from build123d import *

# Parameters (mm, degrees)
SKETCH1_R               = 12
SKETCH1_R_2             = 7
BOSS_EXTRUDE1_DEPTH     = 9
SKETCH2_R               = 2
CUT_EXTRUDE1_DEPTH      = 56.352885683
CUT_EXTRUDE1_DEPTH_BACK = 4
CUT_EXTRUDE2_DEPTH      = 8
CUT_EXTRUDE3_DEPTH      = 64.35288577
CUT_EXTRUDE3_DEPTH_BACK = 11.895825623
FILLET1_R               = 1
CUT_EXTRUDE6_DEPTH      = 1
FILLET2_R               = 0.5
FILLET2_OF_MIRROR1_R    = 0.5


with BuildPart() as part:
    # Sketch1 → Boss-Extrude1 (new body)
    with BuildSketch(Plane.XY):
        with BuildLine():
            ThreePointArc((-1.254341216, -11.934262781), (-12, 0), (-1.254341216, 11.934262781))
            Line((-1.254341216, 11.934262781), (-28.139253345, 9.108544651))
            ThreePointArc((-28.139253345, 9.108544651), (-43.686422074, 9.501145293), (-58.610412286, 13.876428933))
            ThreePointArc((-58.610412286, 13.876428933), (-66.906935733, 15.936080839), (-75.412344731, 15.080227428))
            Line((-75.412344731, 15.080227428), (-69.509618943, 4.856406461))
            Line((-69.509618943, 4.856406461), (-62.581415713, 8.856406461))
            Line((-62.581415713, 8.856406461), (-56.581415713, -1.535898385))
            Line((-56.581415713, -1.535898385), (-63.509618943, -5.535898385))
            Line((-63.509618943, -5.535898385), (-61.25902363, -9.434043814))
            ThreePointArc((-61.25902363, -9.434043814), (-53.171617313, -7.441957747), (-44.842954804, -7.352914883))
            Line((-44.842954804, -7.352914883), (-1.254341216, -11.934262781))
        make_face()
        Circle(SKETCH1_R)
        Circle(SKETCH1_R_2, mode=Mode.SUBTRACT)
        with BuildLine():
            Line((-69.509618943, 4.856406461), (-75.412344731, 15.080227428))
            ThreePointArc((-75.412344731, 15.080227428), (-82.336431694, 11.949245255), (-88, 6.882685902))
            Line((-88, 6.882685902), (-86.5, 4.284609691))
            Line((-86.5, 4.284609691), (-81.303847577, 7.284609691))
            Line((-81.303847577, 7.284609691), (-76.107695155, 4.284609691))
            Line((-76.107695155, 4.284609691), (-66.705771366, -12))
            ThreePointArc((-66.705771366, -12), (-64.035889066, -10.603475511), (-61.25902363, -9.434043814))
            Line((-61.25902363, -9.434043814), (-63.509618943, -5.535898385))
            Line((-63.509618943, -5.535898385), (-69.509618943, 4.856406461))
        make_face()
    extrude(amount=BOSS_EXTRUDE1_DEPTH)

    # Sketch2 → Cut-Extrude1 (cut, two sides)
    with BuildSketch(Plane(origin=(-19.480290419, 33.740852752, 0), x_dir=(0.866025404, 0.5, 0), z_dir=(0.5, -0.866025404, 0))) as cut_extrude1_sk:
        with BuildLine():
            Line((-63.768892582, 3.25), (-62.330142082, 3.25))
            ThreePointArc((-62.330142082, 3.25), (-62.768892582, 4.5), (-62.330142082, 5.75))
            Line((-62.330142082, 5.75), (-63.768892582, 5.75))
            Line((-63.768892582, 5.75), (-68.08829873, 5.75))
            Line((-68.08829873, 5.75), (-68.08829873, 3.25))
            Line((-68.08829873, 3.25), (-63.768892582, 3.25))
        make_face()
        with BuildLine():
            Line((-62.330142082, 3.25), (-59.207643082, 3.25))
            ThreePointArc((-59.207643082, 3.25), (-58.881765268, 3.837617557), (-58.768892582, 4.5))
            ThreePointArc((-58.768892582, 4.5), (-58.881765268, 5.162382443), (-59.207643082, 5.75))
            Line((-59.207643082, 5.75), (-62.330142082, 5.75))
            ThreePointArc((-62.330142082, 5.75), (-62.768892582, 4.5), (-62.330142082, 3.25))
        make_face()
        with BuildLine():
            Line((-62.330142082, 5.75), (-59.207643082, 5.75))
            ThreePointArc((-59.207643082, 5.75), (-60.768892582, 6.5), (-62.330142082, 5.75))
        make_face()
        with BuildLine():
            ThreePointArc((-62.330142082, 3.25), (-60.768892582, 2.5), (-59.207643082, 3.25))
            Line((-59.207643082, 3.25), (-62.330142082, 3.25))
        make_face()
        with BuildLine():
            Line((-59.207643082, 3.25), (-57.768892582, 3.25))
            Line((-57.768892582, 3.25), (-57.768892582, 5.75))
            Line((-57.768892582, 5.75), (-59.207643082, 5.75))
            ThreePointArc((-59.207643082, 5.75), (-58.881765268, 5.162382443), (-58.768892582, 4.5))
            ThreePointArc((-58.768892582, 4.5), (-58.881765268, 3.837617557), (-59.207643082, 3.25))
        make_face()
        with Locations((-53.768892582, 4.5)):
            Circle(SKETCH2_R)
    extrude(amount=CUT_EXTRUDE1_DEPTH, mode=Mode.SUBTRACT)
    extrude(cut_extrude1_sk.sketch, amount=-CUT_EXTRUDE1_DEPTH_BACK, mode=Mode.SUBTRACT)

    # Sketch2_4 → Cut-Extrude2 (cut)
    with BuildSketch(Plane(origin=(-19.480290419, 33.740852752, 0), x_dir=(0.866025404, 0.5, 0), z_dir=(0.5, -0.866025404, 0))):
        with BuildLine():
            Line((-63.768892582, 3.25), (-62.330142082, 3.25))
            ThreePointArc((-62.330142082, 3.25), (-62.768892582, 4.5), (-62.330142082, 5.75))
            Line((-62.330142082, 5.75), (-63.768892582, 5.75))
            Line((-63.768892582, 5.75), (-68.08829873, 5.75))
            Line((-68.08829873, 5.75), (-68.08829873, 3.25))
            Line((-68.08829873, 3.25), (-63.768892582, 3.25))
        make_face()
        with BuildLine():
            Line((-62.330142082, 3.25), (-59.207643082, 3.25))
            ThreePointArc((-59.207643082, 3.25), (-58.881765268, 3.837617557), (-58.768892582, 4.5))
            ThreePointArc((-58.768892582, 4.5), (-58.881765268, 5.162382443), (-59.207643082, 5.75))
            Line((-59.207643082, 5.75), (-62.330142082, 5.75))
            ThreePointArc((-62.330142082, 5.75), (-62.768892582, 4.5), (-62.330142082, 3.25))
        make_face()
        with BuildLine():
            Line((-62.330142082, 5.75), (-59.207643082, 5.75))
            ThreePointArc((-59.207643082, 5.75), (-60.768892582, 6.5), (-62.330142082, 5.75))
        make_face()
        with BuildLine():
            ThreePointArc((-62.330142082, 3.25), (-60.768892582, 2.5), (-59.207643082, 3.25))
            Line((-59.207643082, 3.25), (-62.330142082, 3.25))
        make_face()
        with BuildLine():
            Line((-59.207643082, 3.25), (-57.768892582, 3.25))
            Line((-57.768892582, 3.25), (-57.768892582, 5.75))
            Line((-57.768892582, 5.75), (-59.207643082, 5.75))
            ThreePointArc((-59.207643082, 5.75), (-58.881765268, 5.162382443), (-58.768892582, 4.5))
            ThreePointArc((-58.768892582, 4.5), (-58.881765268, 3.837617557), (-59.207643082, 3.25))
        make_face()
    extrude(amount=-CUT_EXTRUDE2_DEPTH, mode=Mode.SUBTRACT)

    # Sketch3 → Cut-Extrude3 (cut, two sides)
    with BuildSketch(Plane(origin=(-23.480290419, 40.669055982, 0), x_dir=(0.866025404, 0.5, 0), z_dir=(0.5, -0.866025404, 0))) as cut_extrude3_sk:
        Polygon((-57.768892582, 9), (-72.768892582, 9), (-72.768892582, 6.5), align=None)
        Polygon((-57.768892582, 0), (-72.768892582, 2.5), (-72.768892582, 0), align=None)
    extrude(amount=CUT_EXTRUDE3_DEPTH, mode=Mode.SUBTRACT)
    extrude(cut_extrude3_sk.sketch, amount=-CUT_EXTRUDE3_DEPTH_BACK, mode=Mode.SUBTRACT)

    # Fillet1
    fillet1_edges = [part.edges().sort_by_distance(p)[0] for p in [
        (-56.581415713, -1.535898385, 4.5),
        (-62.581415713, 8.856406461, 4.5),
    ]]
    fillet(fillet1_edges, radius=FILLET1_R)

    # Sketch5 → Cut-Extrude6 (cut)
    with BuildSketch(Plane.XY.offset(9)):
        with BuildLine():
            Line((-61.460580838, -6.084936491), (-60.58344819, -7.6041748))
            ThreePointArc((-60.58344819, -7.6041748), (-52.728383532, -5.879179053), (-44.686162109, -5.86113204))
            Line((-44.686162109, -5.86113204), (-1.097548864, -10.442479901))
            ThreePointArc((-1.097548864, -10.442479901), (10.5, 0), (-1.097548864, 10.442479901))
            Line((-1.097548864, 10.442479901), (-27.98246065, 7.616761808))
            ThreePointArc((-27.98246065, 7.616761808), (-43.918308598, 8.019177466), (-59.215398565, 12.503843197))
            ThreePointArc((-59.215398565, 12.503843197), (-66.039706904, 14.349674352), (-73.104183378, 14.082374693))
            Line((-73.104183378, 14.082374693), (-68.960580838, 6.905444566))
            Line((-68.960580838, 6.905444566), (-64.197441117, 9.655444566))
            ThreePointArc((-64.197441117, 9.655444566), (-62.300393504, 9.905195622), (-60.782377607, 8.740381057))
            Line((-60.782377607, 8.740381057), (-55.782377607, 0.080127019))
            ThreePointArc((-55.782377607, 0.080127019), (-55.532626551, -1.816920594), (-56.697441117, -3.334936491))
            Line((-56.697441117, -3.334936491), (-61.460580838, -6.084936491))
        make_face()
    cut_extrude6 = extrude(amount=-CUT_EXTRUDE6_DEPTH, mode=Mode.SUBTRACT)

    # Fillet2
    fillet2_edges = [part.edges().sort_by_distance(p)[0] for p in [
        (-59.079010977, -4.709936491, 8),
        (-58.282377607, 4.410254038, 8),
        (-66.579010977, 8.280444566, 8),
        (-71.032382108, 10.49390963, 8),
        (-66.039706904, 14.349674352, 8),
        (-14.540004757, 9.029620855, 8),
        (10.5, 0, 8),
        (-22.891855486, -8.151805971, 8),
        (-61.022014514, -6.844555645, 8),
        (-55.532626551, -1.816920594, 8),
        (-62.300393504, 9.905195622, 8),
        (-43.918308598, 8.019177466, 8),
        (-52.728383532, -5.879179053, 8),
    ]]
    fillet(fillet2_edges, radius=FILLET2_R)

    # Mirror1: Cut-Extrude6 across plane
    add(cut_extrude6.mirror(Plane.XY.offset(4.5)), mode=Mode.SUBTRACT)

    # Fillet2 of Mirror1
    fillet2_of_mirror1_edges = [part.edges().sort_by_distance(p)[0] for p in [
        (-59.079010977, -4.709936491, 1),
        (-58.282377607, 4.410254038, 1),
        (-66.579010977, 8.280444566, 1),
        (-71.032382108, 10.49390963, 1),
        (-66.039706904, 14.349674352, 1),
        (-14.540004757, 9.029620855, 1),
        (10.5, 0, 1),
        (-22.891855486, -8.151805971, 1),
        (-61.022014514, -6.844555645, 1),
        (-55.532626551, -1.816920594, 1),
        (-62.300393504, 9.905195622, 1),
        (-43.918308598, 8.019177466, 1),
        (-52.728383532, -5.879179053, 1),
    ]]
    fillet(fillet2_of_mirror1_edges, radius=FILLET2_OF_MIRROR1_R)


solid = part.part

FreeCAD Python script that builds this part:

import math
import FreeCAD as App
import Part
import Sketcher
Q = App.Units.Quantity


def edges_at(feature, points):
    """Names of the edges that pass closest to the given points."""
    edges = feature.Shape.Edges
    near = lambda p: min(range(len(edges)), key=lambda i: edges[i].distToShape(Part.Vertex(*p))[0])
    return sorted({f"Edge{near(p) + 1}" for p in points})

doc = App.newDocument("Part")
body = doc.addObject("PartDesign::Body", "Body")

# Sketch on XY plane
sketch1 = body.newObject("Sketcher::SketchObject", "Sketch")
sketch1.AttachmentSupport = (doc.getObject("XY_Plane"), [""])
sketch1.MapMode = "FlatFace"
sketch1.addGeometry(Part.LineSegment(App.Vector(-1.254341, 11.934263, 0), App.Vector(-28.139253, 9.108545, 0)), False)
sketch1.addGeometry(Part.ArcOfCircle(Part.Circle(App.Vector(-34.410961, 68.779858, 0), App.Vector(0, 0, 1), 60), math.radians(-113.786155), math.radians(-84)), False)
sketch1.addGeometry(Part.ArcOfCircle(Part.Circle(App.Vector(-68.693517, -9, 0), App.Vector(0, 0, 1), 25), math.radians(66.213845), math.radians(105.590083)), False)
sketch1.addGeometry(Part.ArcOfCircle(Part.Circle(App.Vector(-68.693517, -9, 0), App.Vector(0, 0, 1), 25), math.radians(105.590083), math.radians(140.55721)), False)
sketch1.addGeometry(Part.LineSegment(App.Vector(-88, 6.882686, 0), App.Vector(-86.5, 4.28461, 0)), False)
sketch1.addGeometry(Part.LineSegment(App.Vector(-86.5, 4.28461, 0), App.Vector(-81.303848, 7.28461, 0)), False)
sketch1.addGeometry(Part.LineSegment(App.Vector(-81.303848, 7.28461, 0), App.Vector(-76.107695, 4.28461, 0)), False)
sketch1.addGeometry(Part.LineSegment(App.Vector(-76.107695, 4.28461, 0), App.Vector(-66.705771, -12, 0)), False)
sketch1.addGeometry(Part.ArcOfCircle(Part.Circle(App.Vector(-48.623234, -43.319873, 0), App.Vector(0, 0, 1), 36.165074), math.radians(110.450135), math.radians(120)), False)
sketch1.addGeometry(Part.ArcOfCircle(Part.Circle(App.Vector(-48.623234, -43.319873, 0), App.Vector(0, 0, 1), 36.165074), math.radians(84), math.radians(110.450135)), False)
sketch1.addGeometry(Part.LineSegment(App.Vector(-44.842955, -7.352915, 0), App.Vector(-1.254341, -11.934263, 0)), False)
sketch1.addGeometry(Part.ArcOfCircle(Part.Circle(App.Vector(0, 0, 0), App.Vector(0, 0, 1), 12), math.radians(-95.999998), math.radians(95.999998)), False)
sketch1.addGeometry(Part.LineSegment(App.Vector(-69.509619, 4.856406, 0), App.Vector(-62.581416, 8.856406, 0)), False)
sketch1.addGeometry(Part.LineSegment(App.Vector(-62.581416, 8.856406, 0), App.Vector(-56.581416, -1.535898, 0)), False)
sketch1.addGeometry(Part.LineSegment(App.Vector(-56.581416, -1.535898, 0), App.Vector(-63.509619, -5.535898, 0)), False)
sketch1.addGeometry(Part.LineSegment(App.Vector(-63.509619, -5.535898, 0), App.Vector(-69.509619, 4.856406, 0)), False)
sketch1.addGeometry(Part.Circle(App.Vector(0, 0, 0), App.Vector(0, 0, 1), 7), False)
sketch1.addConstraint(Sketcher.Constraint("Tangent", 0, 2, 1, 2))
sketch1.addConstraint(Sketcher.Constraint("Tangent", 1, 1, 2, 1))
sketch1.addConstraint(Sketcher.Constraint("Tangent", 2, 2, 3, 1))
sketch1.addConstraint(Sketcher.Constraint("Coincident", 3, 2, 4, 1))
sketch1.addConstraint(Sketcher.Constraint("Coincident", 4, 2, 5, 1))
sketch1.addConstraint(Sketcher.Constraint("Coincident", 5, 2, 6, 1))
sketch1.addConstraint(Sketcher.Constraint("Coincident", 6, 2, 7, 1))
sketch1.addConstraint(Sketcher.Constraint("Coincident", 7, 2, 8, 2))
sketch1.addConstraint(Sketcher.Constraint("Tangent", 8, 1, 9, 2))
sketch1.addConstraint(Sketcher.Constraint("Tangent", 9, 1, 10, 1))
sketch1.addConstraint(Sketcher.Constraint("Tangent", 10, 2, 11, 1))
sketch1.addConstraint(Sketcher.Constraint("Tangent", 11, 2, 0, 1))
sketch1.addConstraint(Sketcher.Constraint("Coincident", 12, 2, 13, 1))
sketch1.addConstraint(Sketcher.Constraint("Coincident", 13, 2, 14, 1))
sketch1.addConstraint(Sketcher.Constraint("Coincident", 14, 2, 15, 1))
sketch1.addConstraint(Sketcher.Constraint("Coincident", 15, 2, 12, 1))
sketch1.addConstraint(Sketcher.Constraint("Coincident", 11, 3, -1, 1))
sketch1.addConstraint(Sketcher.Constraint("Coincident", 16, 3, -1, 1))
sketch1.addConstraint(Sketcher.Constraint("Equal", 2, 3))
sketch1.addConstraint(Sketcher.Constraint("Equal", 8, 9))
sketch1.addConstraint(Sketcher.Constraint("Perpendicular", 4, 5))
sketch1.addConstraint(Sketcher.Constraint("Perpendicular", 5, 7))
sketch1.addConstraint(Sketcher.Constraint("Perpendicular", 7, 12))
sketch1.addConstraint(Sketcher.Constraint("Perpendicular", 12, 13))
sketch1.addConstraint(Sketcher.Constraint("Perpendicular", 13, 14))
sketch1.addConstraint(Sketcher.Constraint("Perpendicular", 14, 15))
sketch1.addConstraint(Sketcher.Constraint("Horizontal", 4, 2, 6, 2))
sketch1.addConstraint(Sketcher.Constraint("Vertical", 10, 2, 11, 2))
sketch1.addConstraint(Sketcher.Constraint("Equal", 5, 6))
sketch1.addConstraint(Sketcher.Constraint("Diameter", 16, 14.0))
sketch1.addConstraint(Sketcher.Constraint("Radius", 1, 60.0))
sketch1.addConstraint(Sketcher.Constraint("Radius", 2, 25.0))
sketch1.addConstraint(Sketcher.Constraint("Radius", 11, 12.0))
sketch1.addConstraint(Sketcher.Constraint("Angle", 0, Q("-174 deg")))
sketch1.addConstraint(Sketcher.Constraint("Angle", 4, Q("-60 deg")))
sketch1.addConstraint(Sketcher.Constraint("Distance", 4, 3.0))
sketch1.addConstraint(Sketcher.Constraint("Distance", 5, 6.0))
sketch1.addConstraint(Sketcher.Constraint("Distance", 12, 8.0))
sketch1.addConstraint(Sketcher.Constraint("Distance", 13, 12.0))
sketch1.addConstraint(Sketcher.Constraint("DistanceY", 2, 3, -1, 1, 9.0))
sketch1.addConstraint(Sketcher.Constraint("DistanceX", 3, 2, -1, 1, 88.0))
sketch1.addConstraint(Sketcher.Constraint("DistanceY", 7, 2, -1, 1, 12.0))
sketch1.addConstraint(Sketcher.Constraint("Distance", 0, 27.033002))
sketch1.addConstraint(Sketcher.Constraint("Radius", 8, 36.165074))
sketch1.addConstraint(Sketcher.Constraint("DistanceY", 13, 2, -1, 1, 1.535898))
sketch1.addConstraint(Sketcher.Constraint("DistanceY", 1, 1, 2, 2, 1.203798))
sketch1.addConstraint(Sketcher.Constraint("DistanceX", 3, 3, 13, 2, 12.112101))
sketch1.addConstraint(Sketcher.Constraint("DistanceX", 6, 2, 8, 1, 14.848672))
pad1 = body.newObject("PartDesign::Pad", "Pad")
pad1.Profile = sketch1
pad1.Length = 9

# Sketch on an angled plane
sketch2 = body.newObject("Sketcher::SketchObject", "Sketch001")
sketch2.Placement = App.Placement(App.Vector(-19.48029, 33.740853, 0), App.Rotation(App.Vector(0.866025404, 0.5, 0), App.Vector(0, 0, 1), App.Vector(0.5, -0.866025404, 0), "ZXY"))
sketch2.addGeometry(Part.LineSegment(App.Vector(-68.088299, 5.75, 0), App.Vector(-68.088299, 3.25, 0)), False)
sketch2.addGeometry(Part.LineSegment(App.Vector(-68.088299, 3.25, 0), App.Vector(-62.330142, 3.25, 0)), False)
sketch2.addGeometry(Part.ArcOfCircle(Part.Circle(App.Vector(-60.768893, 4.5, 0), App.Vector(0, 0, 1), 2), math.radians(-141.317813), math.radians(-38.682187)), False)
sketch2.addGeometry(Part.LineSegment(App.Vector(-59.207643, 3.25, 0), App.Vector(-57.768893, 3.25, 0)), False)
sketch2.addGeometry(Part.LineSegment(App.Vector(-57.768893, 3.25, 0), App.Vector(-57.768893, 5.75, 0)), False)
sketch2.addGeometry(Part.LineSegment(App.Vector(-57.768893, 5.75, 0), App.Vector(-59.207643, 5.75, 0)), False)
sketch2.addGeometry(Part.ArcOfCircle(Part.Circle(App.Vector(-60.768893, 4.5, 0), App.Vector(0, 0, 1), 2), math.radians(38.682187), math.radians(141.317813)), False)
sketch2.addGeometry(Part.LineSegment(App.Vector(-62.330142, 5.75, 0), App.Vector(-68.088299, 5.75, 0)), False)
sketch2.addGeometry(Part.Circle(App.Vector(-53.768893, 4.5, 0), App.Vector(0, 0, 1), 2), False)
sketch2.addConstraint(Sketcher.Constraint("Coincident", 0, 2, 1, 1))
sketch2.addConstraint(Sketcher.Constraint("Coincident", 1, 2, 2, 1))
sketch2.addConstraint(Sketcher.Constraint("Coincident", 2, 2, 3, 1))
sketch2.addConstraint(Sketcher.Constraint("Coincident", 3, 2, 4, 1))
sketch2.addConstraint(Sketcher.Constraint("Coincident", 4, 2, 5, 1))
sketch2.addConstraint(Sketcher.Constraint("Coincident", 5, 2, 6, 1))
sketch2.addConstraint(Sketcher.Constraint("Coincident", 6, 2, 7, 1))
sketch2.addConstraint(Sketcher.Constraint("Coincident", 7, 2, 0, 1))
sketch2.addConstraint(Sketcher.Constraint("Vertical", 0))
sketch2.addConstraint(Sketcher.Constraint("Horizontal", 1))
sketch2.addConstraint(Sketcher.Constraint("Horizontal", 3))
sketch2.addConstraint(Sketcher.Constraint("Vertical", 4))
sketch2.addConstraint(Sketcher.Constraint("Horizontal", 5))
sketch2.addConstraint(Sketcher.Constraint("Horizontal", 7))
sketch2.addConstraint(Sketcher.Constraint("Coincident", 6, 3, 2, 3))
sketch2.addConstraint(Sketcher.Constraint("Equal", 2, 6))
sketch2.addConstraint(Sketcher.Constraint("Equal", 6, 8))
sketch2.addConstraint(Sketcher.Constraint("Horizontal", 6, 3, 8, 3))
sketch2.addConstraint(Sketcher.Constraint("Horizontal", 1, 2, 2, 2))
sketch2.addConstraint(Sketcher.Constraint("Horizontal", 5, 2, 6, 2))
sketch2.addConstraint(Sketcher.Constraint("Vertical", 2, 2, 5, 2))
sketch2.addConstraint(Sketcher.Constraint("Diameter", 8, 4.0))
sketch2.addConstraint(Sketcher.Constraint("DistanceY", 0, 2, 0, 1, 2.5))
sketch2.addConstraint(Sketcher.Constraint("DistanceX", 2, 3, 8, 3, 7.0))
sketch2.addConstraint(Sketcher.Constraint("DistanceX", 6, 3, 3, 2, 3.0))
sketch2.addConstraint(Sketcher.Constraint("DistanceY", -1, 1, 2, 3, 4.5))
sketch2.addConstraint(Sketcher.Constraint("DistanceX", 0, 2, -1, 1, 68.088299))
sketch2.addConstraint(Sketcher.Constraint("DistanceX", 1, 1, 1, 2, 5.758157))
pocket1 = body.newObject("PartDesign::Pocket", "Pocket")
pocket1.Profile = sketch2
pocket1.Type = "TwoLengths"
pocket1.Length = 56.352886
pocket1.Length2 = 4
pocket1.Reversed = True

# Sketch on an angled plane
sketch3 = body.newObject("Sketcher::SketchObject", "Sketch002")
sketch3.Placement = App.Placement(App.Vector(-19.48029, 33.740853, 0), App.Rotation(App.Vector(0.866025404, 0.5, 0), App.Vector(0, 0, 1), App.Vector(0.5, -0.866025404, 0), "ZXY"))
sketch3.addGeometry(Part.LineSegment(App.Vector(-68.088299, 5.75, 0), App.Vector(-68.088299, 3.25, 0)), False)
sketch3.addGeometry(Part.LineSegment(App.Vector(-68.088299, 3.25, 0), App.Vector(-62.330142, 3.25, 0)), False)
sketch3.addGeometry(Part.ArcOfCircle(Part.Circle(App.Vector(-60.768893, 4.5, 0), App.Vector(0, 0, 1), 2), math.radians(-141.317813), math.radians(-38.682187)), False)
sketch3.addGeometry(Part.LineSegment(App.Vector(-59.207643, 3.25, 0), App.Vector(-57.768893, 3.25, 0)), False)
sketch3.addGeometry(Part.LineSegment(App.Vector(-57.768893, 3.25, 0), App.Vector(-57.768893, 5.75, 0)), False)
sketch3.addGeometry(Part.LineSegment(App.Vector(-57.768893, 5.75, 0), App.Vector(-59.207643, 5.75, 0)), False)
sketch3.addGeometry(Part.ArcOfCircle(Part.Circle(App.Vector(-60.768893, 4.5, 0), App.Vector(0, 0, 1), 2), math.radians(38.682187), math.radians(141.317813)), False)
sketch3.addGeometry(Part.LineSegment(App.Vector(-62.330142, 5.75, 0), App.Vector(-68.088299, 5.75, 0)), False)
sketch3.addConstraint(Sketcher.Constraint("Coincident", 0, 2, 1, 1))
sketch3.addConstraint(Sketcher.Constraint("Coincident", 1, 2, 2, 1))
sketch3.addConstraint(Sketcher.Constraint("Coincident", 2, 2, 3, 1))
sketch3.addConstraint(Sketcher.Constraint("Coincident", 3, 2, 4, 1))
sketch3.addConstraint(Sketcher.Constraint("Coincident", 4, 2, 5, 1))
sketch3.addConstraint(Sketcher.Constraint("Coincident", 5, 2, 6, 1))
sketch3.addConstraint(Sketcher.Constraint("Coincident", 6, 2, 7, 1))
sketch3.addConstraint(Sketcher.Constraint("Coincident", 7, 2, 0, 1))
sketch3.addConstraint(Sketcher.Constraint("Vertical", 0))
sketch3.addConstraint(Sketcher.Constraint("Horizontal", 1))
sketch3.addConstraint(Sketcher.Constraint("Horizontal", 3))
sketch3.addConstraint(Sketcher.Constraint("Vertical", 4))
sketch3.addConstraint(Sketcher.Constraint("Horizontal", 5))
sketch3.addConstraint(Sketcher.Constraint("Horizontal", 7))
sketch3.addConstraint(Sketcher.Constraint("Coincident", 6, 3, 2, 3))
sketch3.addConstraint(Sketcher.Constraint("Equal", 2, 6))
sketch3.addConstraint(Sketcher.Constraint("Horizontal", 1, 2, 2, 2))
sketch3.addConstraint(Sketcher.Constraint("Horizontal", 5, 2, 6, 2))
sketch3.addConstraint(Sketcher.Constraint("Vertical", 2, 2, 5, 2))
sketch3.addConstraint(Sketcher.Constraint("Radius", 2, 2.0))
sketch3.addConstraint(Sketcher.Constraint("DistanceY", 0, 2, 0, 1, 2.5))
sketch3.addConstraint(Sketcher.Constraint("DistanceX", 6, 3, 3, 2, 3.0))
sketch3.addConstraint(Sketcher.Constraint("DistanceY", -1, 1, 2, 3, 4.5))
sketch3.addConstraint(Sketcher.Constraint("DistanceX", 0, 2, -1, 1, 68.088299))
sketch3.addConstraint(Sketcher.Constraint("DistanceX", 1, 1, 1, 2, 5.758157))
pocket2 = body.newObject("PartDesign::Pocket", "Pocket001")
pocket2.Profile = sketch3
pocket2.Length = 8

# Sketch on an angled plane
sketch4 = body.newObject("Sketcher::SketchObject", "Sketch003")
sketch4.Placement = App.Placement(App.Vector(-23.48029, 40.669056, 0), App.Rotation(App.Vector(0.866025404, 0.5, 0), App.Vector(0, 0, 1), App.Vector(0.5, -0.866025404, 0), "ZXY"))
sketch4.addGeometry(Part.LineSegment(App.Vector(-57.768893, 9, 0), App.Vector(-72.768893, 9, 0)), False)
sketch4.addGeometry(Part.LineSegment(App.Vector(-72.768893, 9, 0), App.Vector(-72.768893, 6.5, 0)), False)
sketch4.addGeometry(Part.LineSegment(App.Vector(-72.768893, 6.5, 0), App.Vector(-57.768893, 9, 0)), False)
sketch4.addGeometry(Part.LineSegment(App.Vector(-57.768893, 0, 0), App.Vector(-72.768893, 2.5, 0)), False)
sketch4.addGeometry(Part.LineSegment(App.Vector(-72.768893, 2.5, 0), App.Vector(-72.768893, 0, 0)), False)
sketch4.addGeometry(Part.LineSegment(App.Vector(-72.768893, 0, 0), App.Vector(-57.768893, 0, 0)), False)
sketch4.addConstraint(Sketcher.Constraint("Coincident", 0, 2, 1, 1))
sketch4.addConstraint(Sketcher.Constraint("Coincident", 1, 2, 2, 1))
sketch4.addConstraint(Sketcher.Constraint("Coincident", 2, 2, 0, 1))
sketch4.addConstraint(Sketcher.Constraint("Coincident", 3, 2, 4, 1))
sketch4.addConstraint(Sketcher.Constraint("Coincident", 4, 2, 5, 1))
sketch4.addConstraint(Sketcher.Constraint("Coincident", 5, 2, 3, 1))
sketch4.addConstraint(Sketcher.Constraint("Horizontal", 0))
sketch4.addConstraint(Sketcher.Constraint("Vertical", 1))
sketch4.addConstraint(Sketcher.Constraint("Vertical", 4))
sketch4.addConstraint(Sketcher.Constraint("Horizontal", 5))
sketch4.addConstraint(Sketcher.Constraint("PointOnObject", 4, 2, -1))
sketch4.addConstraint(Sketcher.Constraint("Vertical", 1, 2, 3, 2))
sketch4.addConstraint(Sketcher.Constraint("Vertical", 2, 2, 5, 2))
sketch4.addConstraint(Sketcher.Constraint("Equal", 1, 4))
sketch4.addConstraint(Sketcher.Constraint("DistanceX", 0, 2, 0, 1, 15.0))
sketch4.addConstraint(Sketcher.Constraint("DistanceY", 1, 2, 1, 1, 2.5))
sketch4.addConstraint(Sketcher.Constraint("DistanceY", -1, 1, 0, 2, 9.0))
sketch4.addConstraint(Sketcher.Constraint("DistanceX", 0, 2, -1, 1, 72.768893))
pocket3 = body.newObject("PartDesign::Pocket", "Pocket002")
pocket3.Profile = sketch4
pocket3.Type = "ThroughAll"
pocket3.Midplane = True
doc.recompute()

fillet = body.newObject("PartDesign::Fillet", "Fillet")
fillet.Base = (pocket3, edges_at(pocket3, [(-56.581, -1.536, 4.5), (-62.581, 8.856, 4.5)]))
fillet.Radius = 1

# Sketch on XY plane
sketch5 = body.newObject("Sketcher::SketchObject", "Sketch004")
sketch5.AttachmentSupport = (doc.getObject("XY_Plane"), [""])
sketch5.MapMode = "FlatFace"
sketch5.AttachmentOffset = App.Placement(App.Vector(0, 0, 9), App.Rotation())
sketch5.addGeometry(Part.LineSegment(App.Vector(-61.460581, -6.084936, 0), App.Vector(-60.583448, -7.604175, 0)), False)
sketch5.addGeometry(Part.ArcOfCircle(Part.Circle(App.Vector(-48.623234, -43.319873, 0), App.Vector(0, 0, 1), 37.665074), math.radians(84), math.radians(108.514294)), False)
sketch5.addGeometry(Part.LineSegment(App.Vector(-44.686162, -5.861132, 0), App.Vector(-1.097549, -10.44248, 0)), False)
sketch5.addGeometry(Part.ArcOfCircle(Part.Circle(App.Vector(0, 0, 0), App.Vector(0, 0, 1), 10.5), math.radians(-96), math.radians(96)), False)
sketch5.addGeometry(Part.LineSegment(App.Vector(-1.097549, 10.44248, 0), App.Vector(-27.982461, 7.616762, 0)), False)
sketch5.addGeometry(Part.ArcOfCircle(Part.Circle(App.Vector(-34.410961, 68.779858, 0), App.Vector(0, 0, 1), 61.5), math.radians(-113.786155), math.radians(-84)), False)
sketch5.addGeometry(Part.ArcOfCircle(Part.Circle(App.Vector(-68.693517, -9, 0), App.Vector(0, 0, 1), 23.5), math.radians(66.213845), math.radians(100.817885)), False)
sketch5.addGeometry(Part.LineSegment(App.Vector(-73.104183, 14.082375, 0), App.Vector(-68.960581, 6.905445, 0)), False)
sketch5.addGeometry(Part.LineSegment(App.Vector(-68.960581, 6.905445, 0), App.Vector(-64.197441, 9.655445, 0)), False)
sketch5.addGeometry(Part.ArcOfCircle(Part.Circle(App.Vector(-62.947441, 7.490381, 0), App.Vector(0, 0, 1), 2.5), math.radians(30), math.radians(120)), False)
sketch5.addGeometry(Part.LineSegment(App.Vector(-60.782378, 8.740381, 0), App.Vector(-55.782378, 0.080127, 0)), False)
sketch5.addGeometry(Part.ArcOfCircle(Part.Circle(App.Vector(-57.947441, -1.169873, 0), App.Vector(0, 0, 1), 2.5), math.radians(-60), math.radians(30)), False)
sketch5.addGeometry(Part.LineSegment(App.Vector(-56.697441, -3.334936, 0), App.Vector(-61.460581, -6.084936, 0)), False)
sketch5.addConstraint(Sketcher.Constraint("Coincident", 0, 2, 1, 2))
sketch5.addConstraint(Sketcher.Constraint("Tangent", 1, 1, 2, 1))
sketch5.addConstraint(Sketcher.Constraint("Tangent", 2, 2, 3, 1))
sketch5.addConstraint(Sketcher.Constraint("Tangent", 3, 2, 4, 1))
sketch5.addConstraint(Sketcher.Constraint("Tangent", 4, 2, 5, 2))
sketch5.addConstraint(Sketcher.Constraint("Tangent", 5, 1, 6, 1))
sketch5.addConstraint(Sketcher.Constraint("Coincident", 6, 2, 7, 1))
sketch5.addConstraint(Sketcher.Constraint("Coincident", 7, 2, 8, 1))
sketch5.addConstraint(Sketcher.Constraint("Tangent", 8, 2, 9, 2))
sketch5.addConstraint(Sketcher.Constraint("Tangent", 9, 1, 10, 1))
sketch5.addConstraint(Sketcher.Constraint("Tangent", 10, 2, 11, 2))
sketch5.addConstraint(Sketcher.Constraint("Tangent", 11, 1, 12, 1))
sketch5.addConstraint(Sketcher.Constraint("Coincident", 12, 2, 0, 1))
sketch5.addConstraint(Sketcher.Constraint("Coincident", 3, 3, -1, 1))
sketch5.addConstraint(Sketcher.Constraint("Equal", 9, 11))
sketch5.addConstraint(Sketcher.Constraint("Parallel", 0, 7))
sketch5.addConstraint(Sketcher.Constraint("Perpendicular", 7, 8))
sketch5.addConstraint(Sketcher.Constraint("Perpendicular", 8, 10))
sketch5.addConstraint(Sketcher.Constraint("Perpendicular", 10, 12))
sketch5.addConstraint(Sketcher.Constraint("Vertical", 2, 2, 3, 2))
sketch5.addConstraint(Sketcher.Constraint("Equal", 8, 12))
sketch5.addConstraint(Sketcher.Constraint("Radius", 3, 10.5))
sketch5.addConstraint(Sketcher.Constraint("Radius", 5, 61.5))
sketch5.addConstraint(Sketcher.Constraint("Radius", 6, 23.5))
sketch5.addConstraint(Sketcher.Constraint("Radius", 9, 2.5))
sketch5.addConstraint(Sketcher.Constraint("Angle", 0, Q("-60 deg")))
sketch5.addConstraint(Sketcher.Constraint("Angle", 2, Q("-6 deg")))
sketch5.addConstraint(Sketcher.Constraint("Distance", 10, 10.0))
sketch5.addConstraint(Sketcher.Constraint("DistanceY", 6, 3, -1, 1, 9.0))
sketch5.addConstraint(Sketcher.Constraint("Distance", 8, 5.5))
sketch5.addConstraint(Sketcher.Constraint("DistanceY", 1, 3, 11, 3, 42.15))
sketch5.addConstraint(Sketcher.Constraint("Distance", 4, 27.033001))
sketch5.addConstraint(Sketcher.Constraint("Radius", 1, 37.665074))
sketch5.addConstraint(Sketcher.Constraint("DistanceY", 0, 2, 11, 3, 6.434302))
sketch5.addConstraint(Sketcher.Constraint("DistanceX", 0, 2, 2, 2, 59.485899))
pocket4 = body.newObject("PartDesign::Pocket", "Pocket003")
pocket4.Profile = sketch5
pocket4.Length = 1
doc.recompute()

fillet2 = body.newObject("PartDesign::Fillet", "Fillet001")
fillet2.Base = (pocket4, edges_at(pocket4, [
    (-59.079, -4.71, 8),
    (-58.282, 4.41, 8),
    (-66.579, 8.28, 8),
    (-71.032, 10.494, 8),
    (-66.04, 14.35, 8),
    (-14.54, 9.03, 8),
    (10.5, 0, 8),
    (-22.892, -8.152, 8),
    (-61.022, -6.845, 8),
    (-55.533, -1.817, 8),
    (-62.3, 9.905, 8),
    (-43.918, 8.019, 8),
    (-52.728, -5.879, 8),
]))
fillet2.Radius = 0.5
doc.recompute()

datumplane = body.newObject("PartDesign::Plane", "DatumPlane")
datumplane.AttachmentSupport = (doc.getObject("XY_Plane"), [""])
datumplane.MapMode = "FlatFace"
datumplane.AttachmentOffset = App.Placement(App.Vector(0, 0, 4.5), App.Rotation())
mirrored = body.newObject("PartDesign::Mirrored", "Mirrored")
mirrored.Originals = [pocket4]
mirrored.MirrorPlane = (datumplane, [""])
body.Tip = mirrored
doc.recompute()

fillet3 = body.newObject("PartDesign::Fillet", "Fillet002")
fillet3.Base = (mirrored, edges_at(mirrored, [
    (-59.079, -4.71, 1),
    (-58.282, 4.41, 1),
    (-66.579, 8.28, 1),
    (-71.032, 10.494, 1),
    (-66.04, 14.35, 1),
    (-14.54, 9.03, 1),
    (10.5, 0, 1),
    (-22.892, -8.152, 1),
    (-61.022, -6.845, 1),
    (-55.533, -1.817, 1),
    (-62.3, 9.905, 1),
    (-43.918, 8.019, 1),
    (-52.728, -5.879, 1),
]))
fillet3.Radius = 0.5

doc.recompute()
